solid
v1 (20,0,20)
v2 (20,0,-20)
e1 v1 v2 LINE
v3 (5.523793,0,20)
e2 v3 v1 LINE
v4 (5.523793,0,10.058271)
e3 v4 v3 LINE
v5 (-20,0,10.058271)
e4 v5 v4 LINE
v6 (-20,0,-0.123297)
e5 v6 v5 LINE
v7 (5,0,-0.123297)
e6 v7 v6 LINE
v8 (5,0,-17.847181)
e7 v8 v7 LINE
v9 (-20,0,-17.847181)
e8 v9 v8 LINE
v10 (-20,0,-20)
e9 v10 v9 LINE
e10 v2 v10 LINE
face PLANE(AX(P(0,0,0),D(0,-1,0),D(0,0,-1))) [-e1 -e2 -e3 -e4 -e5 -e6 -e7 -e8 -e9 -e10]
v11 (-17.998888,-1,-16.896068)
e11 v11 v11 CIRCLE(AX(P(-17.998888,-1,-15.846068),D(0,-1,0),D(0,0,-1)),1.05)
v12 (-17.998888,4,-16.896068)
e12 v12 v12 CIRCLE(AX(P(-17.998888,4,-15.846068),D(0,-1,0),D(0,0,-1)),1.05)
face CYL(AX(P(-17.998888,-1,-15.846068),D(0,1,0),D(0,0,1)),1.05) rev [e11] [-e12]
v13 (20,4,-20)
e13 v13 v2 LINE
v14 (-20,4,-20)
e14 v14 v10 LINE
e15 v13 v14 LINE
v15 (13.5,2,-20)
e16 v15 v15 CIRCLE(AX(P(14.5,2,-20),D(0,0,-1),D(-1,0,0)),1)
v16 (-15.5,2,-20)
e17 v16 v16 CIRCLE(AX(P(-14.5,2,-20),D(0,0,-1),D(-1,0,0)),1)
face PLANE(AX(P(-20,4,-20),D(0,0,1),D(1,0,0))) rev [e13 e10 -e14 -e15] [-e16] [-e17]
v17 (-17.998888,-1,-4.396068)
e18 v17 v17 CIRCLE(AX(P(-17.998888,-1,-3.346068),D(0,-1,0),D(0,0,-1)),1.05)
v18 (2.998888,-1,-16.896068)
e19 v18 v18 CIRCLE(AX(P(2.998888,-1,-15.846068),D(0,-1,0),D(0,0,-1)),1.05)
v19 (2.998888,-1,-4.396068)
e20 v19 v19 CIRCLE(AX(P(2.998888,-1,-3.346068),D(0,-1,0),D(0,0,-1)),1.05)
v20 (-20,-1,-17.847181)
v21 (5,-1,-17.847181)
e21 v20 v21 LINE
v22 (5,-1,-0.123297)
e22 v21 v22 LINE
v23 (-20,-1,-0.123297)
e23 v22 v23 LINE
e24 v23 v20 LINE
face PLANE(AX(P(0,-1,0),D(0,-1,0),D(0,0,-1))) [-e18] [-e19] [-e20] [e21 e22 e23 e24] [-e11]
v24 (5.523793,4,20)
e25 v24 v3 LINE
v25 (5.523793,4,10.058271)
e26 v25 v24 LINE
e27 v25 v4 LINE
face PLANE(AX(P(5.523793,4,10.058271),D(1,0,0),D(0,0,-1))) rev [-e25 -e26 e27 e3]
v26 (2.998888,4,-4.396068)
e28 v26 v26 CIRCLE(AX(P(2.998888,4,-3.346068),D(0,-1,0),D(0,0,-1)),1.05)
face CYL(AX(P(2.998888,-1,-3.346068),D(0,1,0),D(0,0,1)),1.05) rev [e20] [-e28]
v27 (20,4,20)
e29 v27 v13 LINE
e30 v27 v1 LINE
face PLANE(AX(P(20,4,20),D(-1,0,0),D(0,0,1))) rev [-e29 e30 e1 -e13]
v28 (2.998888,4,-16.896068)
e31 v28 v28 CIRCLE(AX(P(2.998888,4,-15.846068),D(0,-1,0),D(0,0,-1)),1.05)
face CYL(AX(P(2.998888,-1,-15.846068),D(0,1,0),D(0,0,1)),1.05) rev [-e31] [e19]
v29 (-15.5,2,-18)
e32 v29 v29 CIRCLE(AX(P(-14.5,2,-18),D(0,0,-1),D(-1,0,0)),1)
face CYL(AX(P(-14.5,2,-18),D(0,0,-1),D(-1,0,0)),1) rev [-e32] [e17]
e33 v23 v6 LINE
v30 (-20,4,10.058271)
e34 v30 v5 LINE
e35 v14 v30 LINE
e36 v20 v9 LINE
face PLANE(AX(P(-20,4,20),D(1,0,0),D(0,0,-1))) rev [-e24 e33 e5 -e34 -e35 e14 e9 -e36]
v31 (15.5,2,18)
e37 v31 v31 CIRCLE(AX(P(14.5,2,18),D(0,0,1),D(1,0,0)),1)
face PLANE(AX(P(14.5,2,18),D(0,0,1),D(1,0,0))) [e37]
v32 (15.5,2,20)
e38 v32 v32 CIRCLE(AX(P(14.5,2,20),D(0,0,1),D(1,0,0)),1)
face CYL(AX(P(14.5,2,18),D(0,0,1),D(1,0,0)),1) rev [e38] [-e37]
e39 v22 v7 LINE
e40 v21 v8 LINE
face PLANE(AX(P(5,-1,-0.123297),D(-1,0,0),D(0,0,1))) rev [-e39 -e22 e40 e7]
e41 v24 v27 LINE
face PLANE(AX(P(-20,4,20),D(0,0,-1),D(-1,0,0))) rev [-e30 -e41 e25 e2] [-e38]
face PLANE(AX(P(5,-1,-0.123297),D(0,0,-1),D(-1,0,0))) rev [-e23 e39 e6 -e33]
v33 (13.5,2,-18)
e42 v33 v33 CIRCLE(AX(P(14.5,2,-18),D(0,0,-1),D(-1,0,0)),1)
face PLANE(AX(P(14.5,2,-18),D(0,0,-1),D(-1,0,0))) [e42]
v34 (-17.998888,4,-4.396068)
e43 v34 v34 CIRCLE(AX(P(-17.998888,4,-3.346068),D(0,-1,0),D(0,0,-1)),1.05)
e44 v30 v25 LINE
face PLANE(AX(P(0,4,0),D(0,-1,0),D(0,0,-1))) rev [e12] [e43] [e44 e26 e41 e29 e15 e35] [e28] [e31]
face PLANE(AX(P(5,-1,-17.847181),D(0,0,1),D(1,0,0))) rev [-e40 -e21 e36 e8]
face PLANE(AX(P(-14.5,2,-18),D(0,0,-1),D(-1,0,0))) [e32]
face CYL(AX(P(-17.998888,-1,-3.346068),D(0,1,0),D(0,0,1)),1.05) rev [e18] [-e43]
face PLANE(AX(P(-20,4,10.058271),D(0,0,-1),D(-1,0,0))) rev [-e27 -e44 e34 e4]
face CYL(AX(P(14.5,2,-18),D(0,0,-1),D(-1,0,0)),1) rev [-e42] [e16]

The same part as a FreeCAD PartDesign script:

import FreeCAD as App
import Part
import Sketcher
from FreeCAD import Vector

doc = App.newDocument("Part")
body = doc.addObject("PartDesign::Body", "Body")

# Sketch on XZ plane
sketch1 = body.newObject("Sketcher::SketchObject", "Sketch")
sketch1.AttachmentSupport = (doc.getObject("XZ_Plane"), [""])
sketch1.MapMode = "FlatFace"
sketch1.addGeometry(Part.LineSegment(Vector(-20, -20, 0), Vector(-20, 20, 0)), False)
sketch1.addGeometry(Part.LineSegment(Vector(-20, 20, 0), Vector(20, 20, 0)), False)
sketch1.addGeometry(Part.LineSegment(Vector(20, 20, 0), Vector(20, -20, 0)), False)
sketch1.addGeometry(Part.LineSegment(Vector(20, -20, 0), Vector(-20, -20, 0)), False)
sketch1.addConstraint(Sketcher.Constraint("Coincident", 0, 2, 1, 1))
sketch1.addConstraint(Sketcher.Constraint("Coincident", 1, 2, 2, 1))
sketch1.addConstraint(Sketcher.Constraint("Coincident", 2, 2, 3, 1))
sketch1.addConstraint(Sketcher.Constraint("Coincident", 3, 2, 0, 1))
sketch1.addConstraint(Sketcher.Constraint("Vertical", 0))
sketch1.addConstraint(Sketcher.Constraint("Horizontal", 1))
sketch1.addConstraint(Sketcher.Constraint("Vertical", 2))
sketch1.addConstraint(Sketcher.Constraint("Horizontal", 3))
sketch1.addConstraint(Sketcher.Constraint("Symmetric", 0, 2, 2, 2, -1, 1))
sketch1.addConstraint(Sketcher.Constraint("Equal", 3, 0))
sketch1.addConstraint(Sketcher.Constraint("DistanceX", 1, 1, 1, 2, 40.0))
pad1 = body.newObject("PartDesign::Pad", "Pad")
pad1.Profile = sketch1
pad1.Length = 4
pad1.Reversed = True

# Sketch on XY plane
sketch2 = body.newObject("Sketcher::SketchObject", "Sketch001")
sketch2.AttachmentSupport = (doc.getObject("XY_Plane"), [""])
sketch2.MapMode = "FlatFace"
sketch2.AttachmentOffset = App.Placement(Vector(0, 0, 20), App.Rotation())
sketch2.addGeometry(Part.Circle(Vector(-14.5, 2, 0), Vector(0, 0, 1), 1), False)
sketch2.addGeometry(Part.Circle(Vector(14.5, 2, 0), Vector(0, 0, 1), 1), False)
sketch2.addConstraint(Sketcher.Constraint("Equal", 0, 1))
sketch2.addConstraint(Sketcher.Constraint("Symmetric", 0, 3, 1, 3, -2))
sketch2.addConstraint(Sketcher.Constraint("Diameter", 0, 2.0))
sketch2.addConstraint(Sketcher.Constraint("DistanceY", -1, 1, 0, 3, 2.0))
sketch2.addConstraint(Sketcher.Constraint("DistanceX", 0, 3, 1, 3, 29.0))
pocket1 = body.newObject("PartDesign::Pocket", "Pocket")
pocket1.Profile = sketch2
pocket1.Length = 2

# Sketch on XY plane
sketch3 = body.newObject("Sketcher::SketchObject", "Sketch002")
sketch3.AttachmentSupport = (doc.getObject("XY_Plane"), [""])
sketch3.MapMode = "FlatFace"
sketch3.AttachmentOffset = App.Placement(Vector(0, 0, -20), App.Rotation())
sketch3.addGeometry(Part.Circle(Vector(14.5, 2, 0), Vector(0, 0, 1), 1), False)
sketch3.addGeometry(Part.Circle(Vector(-14.5, 2, 0), Vector(0, 0, 1), 1), False)
sketch3.addConstraint(Sketcher.Constraint("Equal", 0, 1))
sketch3.addConstraint(Sketcher.Constraint("Symmetric", 0, 3, 1, 3, -2))
sketch3.addConstraint(Sketcher.Constraint("Diameter", 0, 2.0))
sketch3.addConstraint(Sketcher.Constraint("DistanceY", -1, 1, 0, 3, 2.0))
sketch3.addConstraint(Sketcher.Constraint("DistanceX", 1, 3, 0, 3, 29.0))
pocket2 = body.newObject("PartDesign::Pocket", "Pocket001")
pocket2.Profile = sketch3
pocket2.Length = 2
pocket2.Reversed = True

# Sketch on XZ plane
sketch4 = body.newObject("Sketcher::SketchObject", "Sketch003")
sketch4.AttachmentSupport = (doc.getObject("XZ_Plane"), [""])
sketch4.MapMode = "FlatFace"
sketch4.addGeometry(Part.LineSegment(Vector(5, -17.8, 0), Vector(5, -0.1, 0)), False)
sketch4.addGeometry(Part.LineSegment(Vector(5, -0.1, 0), Vector(-20, -0.1, 0)), False)
sketch4.addGeometry(Part.LineSegment(Vector(-20, -0.1, 0), Vector(-20, -17.8, 0)), False)
sketch4.addGeometry(Part.LineSegment(Vector(-20, -17.8, 0), Vector(5, -17.8, 0)), False)
sketch4.addGeometry(Part.Circle(Vector(3, -3.3, 0), Vector(0, 0, 1), 1.1), False)
sketch4.addGeometry(Part.Circle(Vector(-18, -3.3, 0), Vector(0, 0, 1), 1.1), False)
sketch4.addGeometry(Part.Circle(Vector(3, -15.8, 0), Vector(0, 0, 1), 1.1), False)
sketch4.addGeometry(Part.Circle(Vector(-18, -15.8, 0), Vector(0, 0, 1), 1.1), False)
sketch4.addConstraint(Sketcher.Constraint("Coincident", 0, 2, 1, 1))
sketch4.addConstraint(Sketcher.Constraint("Coincident", 1, 2, 2, 1))
sketch4.addConstraint(Sketcher.Constraint("Coincident", 2, 2, 3, 1))
sketch4.addConstraint(Sketcher.Constraint("Coincident", 3, 2, 0, 1))
sketch4.addConstraint(Sketcher.Constraint("Vertical", 0))
sketch4.addConstraint(Sketcher.Constraint("Horizontal", 1))
sketch4.addConstraint(Sketcher.Constraint("Vertical", 2))
sketch4.addConstraint(Sketcher.Constraint("Horizontal", 3))
sketch4.addConstraint(Sketcher.Constraint("Equal", 4, 5))
sketch4.addConstraint(Sketcher.Constraint("Equal", 5, 6))
sketch4.addConstraint(Sketcher.Constraint("Equal", 6, 7))
sketch4.addConstraint(Sketcher.Constraint("Horizontal", 4, 3, 5, 3))
sketch4.addConstraint(Sketcher.Constraint("Horizontal", 6, 3, 7, 3))
sketch4.addConstraint(Sketcher.Constraint("Vertical", 4, 3, 6, 3))
sketch4.addConstraint(Sketcher.Constraint("Vertical", 5, 3, 7, 3))
sketch4.addConstraint(Sketcher.Constraint("Diameter", 4, 2.1))
sketch4.addConstraint(Sketcher.Constraint("DistanceX", 1, 2, 1, 1, 25.0))
sketch4.addConstraint(Sketcher.Constraint("DistanceX", -1, 1, 0, 2, 5.0))
sketch4.addConstraint(Sketcher.Constraint("DistanceY", 6, 3, 4, 3, 12.5))
sketch4.addConstraint(Sketcher.Constraint("DistanceY", 0, 1, 0, 2, 17.723884))
sketch4.addConstraint(Sketcher.Constraint("DistanceY", 4, 3, -1, 1, 3.346068))
sketch4.addConstraint(Sketcher.Constraint("DistanceY", 2, 2, -1, 1, 17.847181))
sketch4.addConstraint(Sketcher.Constraint("DistanceX", -1, 1, 4, 3, 2.998888))
sketch4.addConstraint(Sketcher.Constraint("DistanceX", 5, 3, -1, 1, 17.998888))
pad2 = body.newObject("PartDesign::Pad", "Pad001")
pad2.Profile = sketch4
pad2.Length = 1

# Sketch on XZ plane
sketch5 = body.newObject("Sketcher::SketchObject", "Sketch004")
sketch5.AttachmentSupport = (doc.getObject("XZ_Plane"), [""])
sketch5.MapMode = "FlatFace"
sketch5.AttachmentOffset = App.Placement(Vector(0, 0, 1), App.Rotation())
sketch5.addGeometry(Part.Circle(Vector(-18, -15.8, 0), Vector(0, 0, 1), 1.1), False)
sketch5.addGeometry(Part.Circle(Vector(3, -15.8, 0), Vector(0, 0, 1), 1.1), False)
sketch5.addGeometry(Part.Circle(Vector(3, -3.3, 0), Vector(0, 0, 1), 1.1), False)
sketch5.addGeometry(Part.Circle(Vector(-18, -3.3, 0), Vector(0, 0, 1), 1.1), False)
sketch5.addConstraint(Sketcher.Constraint("Equal", 0, 1))
sketch5.addConstraint(Sketcher.Constraint("Equal", 1, 2))
sketch5.addConstraint(Sketcher.Constraint("Equal", 2, 3))
sketch5.addConstraint(Sketcher.Constraint("Horizontal", 0, 3, 1, 3))
sketch5.addConstraint(Sketcher.Constraint("Horizontal", 2, 3, 3, 3))
sketch5.addConstraint(Sketcher.Constraint("Vertical", 1, 3, 2, 3))
sketch5.addConstraint(Sketcher.Constraint("Vertical", 0, 3, 3, 3))
sketch5.addConstraint(Sketcher.Constraint("Diameter", 0, 2.1))
sketch5.addConstraint(Sketcher.Constraint("DistanceY", 1, 3, 2, 3, 12.5))
sketch5.addConstraint(Sketcher.Constraint("DistanceY", 0, 3, -1, 1, 15.846068))
sketch5.addConstraint(Sketcher.Constraint("DistanceX", 0, 3, -1, 1, 17.998888))
sketch5.addConstraint(Sketcher.Constraint("DistanceX", -1, 1, 1, 3, 2.998888))
pocket3 = body.newObject("PartDesign::Pocket", "Pocket002")
pocket3.Profile = sketch5
pocket3.Type = "ThroughAll"

# Sketch on XZ plane
sketch6 = body.newObject("Sketcher::SketchObject", "Sketch005")
sketch6.AttachmentSupport = (doc.getObject("XZ_Plane"), [""])
sketch6.MapMode = "FlatFace"
sketch6.addGeometry(Part.LineSegment(Vector(6, 10, 0), Vector(6, 20, 0)), False)
sketch6.addGeometry(Part.LineSegment(Vector(6, 20, 0), Vector(-20, 20, 0)), False)
sketch6.addGeometry(Part.LineSegment(Vector(-20, 20, 0), Vector(-20, 10, 0)), False)
sketch6.addGeometry(Part.LineSegment(Vector(-20, 10, 0), Vector(6, 10, 0)), False)
sketch6.addConstraint(Sketcher.Constraint("Coincident", 0, 2, 1, 1))
sketch6.addConstraint(Sketcher.Constraint("Coincident", 1, 2, 2, 1))
sketch6.addConstraint(Sketcher.Constraint("Coincident", 2, 2, 3, 1))
sketch6.addConstraint(Sketcher.Constraint("Coincident", 3, 2, 0, 1))
sketch6.addConstraint(Sketcher.Constraint("Vertical", 0))
sketch6.addConstraint(Sketcher.Constraint("Horizontal", 1))
sketch6.addConstraint(Sketcher.Constraint("Vertical", 2))
sketch6.addConstraint(Sketcher.Constraint("Horizontal", 3))
sketch6.addConstraint(Sketcher.Constraint("DistanceY", -1, 1, 0, 2, 20.0))
sketch6.addConstraint(Sketcher.Constraint("DistanceX", 1, 2, -1, 1, 20.0))
sketch6.addConstraint(Sketcher.Constraint("DistanceY", 0, 1, 0, 2, 9.941729))
sketch6.addConstraint(Sketcher.Constraint("DistanceX", 1, 2, 1, 1, 25.523793))
pocket4 = body.newObject("PartDesign::Pocket", "Pocket003")
pocket4.Profile = sketch6
pocket4.Type = "ThroughAll"

doc.recompute()
